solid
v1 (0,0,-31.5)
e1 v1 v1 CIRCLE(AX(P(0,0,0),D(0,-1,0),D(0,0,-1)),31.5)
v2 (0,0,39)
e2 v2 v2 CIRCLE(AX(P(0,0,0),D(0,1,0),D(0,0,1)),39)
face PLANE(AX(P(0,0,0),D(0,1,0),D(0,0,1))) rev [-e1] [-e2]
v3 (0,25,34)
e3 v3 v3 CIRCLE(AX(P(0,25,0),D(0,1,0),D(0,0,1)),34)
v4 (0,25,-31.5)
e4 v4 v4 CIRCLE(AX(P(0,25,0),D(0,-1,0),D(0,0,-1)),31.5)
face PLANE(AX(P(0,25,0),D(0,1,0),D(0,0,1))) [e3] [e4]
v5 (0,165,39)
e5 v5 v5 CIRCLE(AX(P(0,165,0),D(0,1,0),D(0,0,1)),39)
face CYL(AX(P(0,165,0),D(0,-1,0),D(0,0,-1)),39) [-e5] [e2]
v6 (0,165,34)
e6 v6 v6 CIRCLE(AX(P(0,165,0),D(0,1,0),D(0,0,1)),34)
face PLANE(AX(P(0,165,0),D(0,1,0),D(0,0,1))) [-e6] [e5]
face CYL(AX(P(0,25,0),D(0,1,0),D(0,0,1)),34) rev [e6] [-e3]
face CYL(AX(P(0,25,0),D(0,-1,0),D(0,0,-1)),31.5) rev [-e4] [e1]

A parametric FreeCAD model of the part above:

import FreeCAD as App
import Part
import Sketcher

V = App.Vector
Q = App.Units.Quantity

doc = App.newDocument("Part")
body = doc.addObject("PartDesign::Body", "Body")

sketch1 = doc.addObject("Sketcher::SketchObject", "Sketch")
body.addObject(sketch1)
sketch1.AttachmentSupport = (doc.XZ_Plane, [""])
sketch1.MapMode = "FlatFace"
sketch1.addGeometry(Part.Circle(V(0, 0, 0), V(0, 0, 1), 39), False)
sketch1.addConstraint([
    Sketcher.Constraint("Coincident", 0, 3, -1, 1),
    Sketcher.Constraint("Diameter", 0, Q("78 mm")),
])
pad1 = doc.addObject("PartDesign::Pad", "Pad")
body.addObject(pad1)
pad1.Profile = sketch1
pad1.Length = 165
pad1.Reversed = True

sketch2 = doc.addObject("Sketcher::SketchObject", "Sketch001")
body.addObject(sketch2)
sketch2.AttachmentSupport = (doc.XZ_Plane, [""])
sketch2.MapMode = "FlatFace"
sketch2.addGeometry(Part.Circle(V(0, 0, 0), V(0, 0, 1), 32), False)
sketch2.addConstraint([
    Sketcher.Constraint("Coincident", 0, 3, -1, 1),
    Sketcher.Constraint("Diameter", 0, Q("63 mm")),
])
pocket1 = doc.addObject("PartDesign::Pocket", "Pocket")
body.addObject(pocket1)
pocket1.Profile = sketch2
pocket1.Length = 25

sketch3 = doc.addObject("Sketcher::SketchObject", "Sketch002")
body.addObject(sketch3)
sketch3.AttachmentSupport = (doc.XZ_Plane, [""])
sketch3.MapMode = "FlatFace"
sketch3.AttachmentOffset = App.Placement(V(0, 0, -165), App.Rotation())
sketch3.addGeometry(Part.Circle(V(0, 0, 0), V(0, 0, 1), 34), False)
sketch3.addConstraint([
    Sketcher.Constraint("Coincident", 0, 3, -1, 1),
    Sketcher.Constraint("Diameter", 0, Q("68 mm")),
])
pocket2 = doc.addObject("PartDesign::Pocket", "Pocket001")
body.addObject(pocket2)
pocket2.Profile = sketch3
pocket2.Length = 140
pocket2.Reversed = True

doc.recompute()
